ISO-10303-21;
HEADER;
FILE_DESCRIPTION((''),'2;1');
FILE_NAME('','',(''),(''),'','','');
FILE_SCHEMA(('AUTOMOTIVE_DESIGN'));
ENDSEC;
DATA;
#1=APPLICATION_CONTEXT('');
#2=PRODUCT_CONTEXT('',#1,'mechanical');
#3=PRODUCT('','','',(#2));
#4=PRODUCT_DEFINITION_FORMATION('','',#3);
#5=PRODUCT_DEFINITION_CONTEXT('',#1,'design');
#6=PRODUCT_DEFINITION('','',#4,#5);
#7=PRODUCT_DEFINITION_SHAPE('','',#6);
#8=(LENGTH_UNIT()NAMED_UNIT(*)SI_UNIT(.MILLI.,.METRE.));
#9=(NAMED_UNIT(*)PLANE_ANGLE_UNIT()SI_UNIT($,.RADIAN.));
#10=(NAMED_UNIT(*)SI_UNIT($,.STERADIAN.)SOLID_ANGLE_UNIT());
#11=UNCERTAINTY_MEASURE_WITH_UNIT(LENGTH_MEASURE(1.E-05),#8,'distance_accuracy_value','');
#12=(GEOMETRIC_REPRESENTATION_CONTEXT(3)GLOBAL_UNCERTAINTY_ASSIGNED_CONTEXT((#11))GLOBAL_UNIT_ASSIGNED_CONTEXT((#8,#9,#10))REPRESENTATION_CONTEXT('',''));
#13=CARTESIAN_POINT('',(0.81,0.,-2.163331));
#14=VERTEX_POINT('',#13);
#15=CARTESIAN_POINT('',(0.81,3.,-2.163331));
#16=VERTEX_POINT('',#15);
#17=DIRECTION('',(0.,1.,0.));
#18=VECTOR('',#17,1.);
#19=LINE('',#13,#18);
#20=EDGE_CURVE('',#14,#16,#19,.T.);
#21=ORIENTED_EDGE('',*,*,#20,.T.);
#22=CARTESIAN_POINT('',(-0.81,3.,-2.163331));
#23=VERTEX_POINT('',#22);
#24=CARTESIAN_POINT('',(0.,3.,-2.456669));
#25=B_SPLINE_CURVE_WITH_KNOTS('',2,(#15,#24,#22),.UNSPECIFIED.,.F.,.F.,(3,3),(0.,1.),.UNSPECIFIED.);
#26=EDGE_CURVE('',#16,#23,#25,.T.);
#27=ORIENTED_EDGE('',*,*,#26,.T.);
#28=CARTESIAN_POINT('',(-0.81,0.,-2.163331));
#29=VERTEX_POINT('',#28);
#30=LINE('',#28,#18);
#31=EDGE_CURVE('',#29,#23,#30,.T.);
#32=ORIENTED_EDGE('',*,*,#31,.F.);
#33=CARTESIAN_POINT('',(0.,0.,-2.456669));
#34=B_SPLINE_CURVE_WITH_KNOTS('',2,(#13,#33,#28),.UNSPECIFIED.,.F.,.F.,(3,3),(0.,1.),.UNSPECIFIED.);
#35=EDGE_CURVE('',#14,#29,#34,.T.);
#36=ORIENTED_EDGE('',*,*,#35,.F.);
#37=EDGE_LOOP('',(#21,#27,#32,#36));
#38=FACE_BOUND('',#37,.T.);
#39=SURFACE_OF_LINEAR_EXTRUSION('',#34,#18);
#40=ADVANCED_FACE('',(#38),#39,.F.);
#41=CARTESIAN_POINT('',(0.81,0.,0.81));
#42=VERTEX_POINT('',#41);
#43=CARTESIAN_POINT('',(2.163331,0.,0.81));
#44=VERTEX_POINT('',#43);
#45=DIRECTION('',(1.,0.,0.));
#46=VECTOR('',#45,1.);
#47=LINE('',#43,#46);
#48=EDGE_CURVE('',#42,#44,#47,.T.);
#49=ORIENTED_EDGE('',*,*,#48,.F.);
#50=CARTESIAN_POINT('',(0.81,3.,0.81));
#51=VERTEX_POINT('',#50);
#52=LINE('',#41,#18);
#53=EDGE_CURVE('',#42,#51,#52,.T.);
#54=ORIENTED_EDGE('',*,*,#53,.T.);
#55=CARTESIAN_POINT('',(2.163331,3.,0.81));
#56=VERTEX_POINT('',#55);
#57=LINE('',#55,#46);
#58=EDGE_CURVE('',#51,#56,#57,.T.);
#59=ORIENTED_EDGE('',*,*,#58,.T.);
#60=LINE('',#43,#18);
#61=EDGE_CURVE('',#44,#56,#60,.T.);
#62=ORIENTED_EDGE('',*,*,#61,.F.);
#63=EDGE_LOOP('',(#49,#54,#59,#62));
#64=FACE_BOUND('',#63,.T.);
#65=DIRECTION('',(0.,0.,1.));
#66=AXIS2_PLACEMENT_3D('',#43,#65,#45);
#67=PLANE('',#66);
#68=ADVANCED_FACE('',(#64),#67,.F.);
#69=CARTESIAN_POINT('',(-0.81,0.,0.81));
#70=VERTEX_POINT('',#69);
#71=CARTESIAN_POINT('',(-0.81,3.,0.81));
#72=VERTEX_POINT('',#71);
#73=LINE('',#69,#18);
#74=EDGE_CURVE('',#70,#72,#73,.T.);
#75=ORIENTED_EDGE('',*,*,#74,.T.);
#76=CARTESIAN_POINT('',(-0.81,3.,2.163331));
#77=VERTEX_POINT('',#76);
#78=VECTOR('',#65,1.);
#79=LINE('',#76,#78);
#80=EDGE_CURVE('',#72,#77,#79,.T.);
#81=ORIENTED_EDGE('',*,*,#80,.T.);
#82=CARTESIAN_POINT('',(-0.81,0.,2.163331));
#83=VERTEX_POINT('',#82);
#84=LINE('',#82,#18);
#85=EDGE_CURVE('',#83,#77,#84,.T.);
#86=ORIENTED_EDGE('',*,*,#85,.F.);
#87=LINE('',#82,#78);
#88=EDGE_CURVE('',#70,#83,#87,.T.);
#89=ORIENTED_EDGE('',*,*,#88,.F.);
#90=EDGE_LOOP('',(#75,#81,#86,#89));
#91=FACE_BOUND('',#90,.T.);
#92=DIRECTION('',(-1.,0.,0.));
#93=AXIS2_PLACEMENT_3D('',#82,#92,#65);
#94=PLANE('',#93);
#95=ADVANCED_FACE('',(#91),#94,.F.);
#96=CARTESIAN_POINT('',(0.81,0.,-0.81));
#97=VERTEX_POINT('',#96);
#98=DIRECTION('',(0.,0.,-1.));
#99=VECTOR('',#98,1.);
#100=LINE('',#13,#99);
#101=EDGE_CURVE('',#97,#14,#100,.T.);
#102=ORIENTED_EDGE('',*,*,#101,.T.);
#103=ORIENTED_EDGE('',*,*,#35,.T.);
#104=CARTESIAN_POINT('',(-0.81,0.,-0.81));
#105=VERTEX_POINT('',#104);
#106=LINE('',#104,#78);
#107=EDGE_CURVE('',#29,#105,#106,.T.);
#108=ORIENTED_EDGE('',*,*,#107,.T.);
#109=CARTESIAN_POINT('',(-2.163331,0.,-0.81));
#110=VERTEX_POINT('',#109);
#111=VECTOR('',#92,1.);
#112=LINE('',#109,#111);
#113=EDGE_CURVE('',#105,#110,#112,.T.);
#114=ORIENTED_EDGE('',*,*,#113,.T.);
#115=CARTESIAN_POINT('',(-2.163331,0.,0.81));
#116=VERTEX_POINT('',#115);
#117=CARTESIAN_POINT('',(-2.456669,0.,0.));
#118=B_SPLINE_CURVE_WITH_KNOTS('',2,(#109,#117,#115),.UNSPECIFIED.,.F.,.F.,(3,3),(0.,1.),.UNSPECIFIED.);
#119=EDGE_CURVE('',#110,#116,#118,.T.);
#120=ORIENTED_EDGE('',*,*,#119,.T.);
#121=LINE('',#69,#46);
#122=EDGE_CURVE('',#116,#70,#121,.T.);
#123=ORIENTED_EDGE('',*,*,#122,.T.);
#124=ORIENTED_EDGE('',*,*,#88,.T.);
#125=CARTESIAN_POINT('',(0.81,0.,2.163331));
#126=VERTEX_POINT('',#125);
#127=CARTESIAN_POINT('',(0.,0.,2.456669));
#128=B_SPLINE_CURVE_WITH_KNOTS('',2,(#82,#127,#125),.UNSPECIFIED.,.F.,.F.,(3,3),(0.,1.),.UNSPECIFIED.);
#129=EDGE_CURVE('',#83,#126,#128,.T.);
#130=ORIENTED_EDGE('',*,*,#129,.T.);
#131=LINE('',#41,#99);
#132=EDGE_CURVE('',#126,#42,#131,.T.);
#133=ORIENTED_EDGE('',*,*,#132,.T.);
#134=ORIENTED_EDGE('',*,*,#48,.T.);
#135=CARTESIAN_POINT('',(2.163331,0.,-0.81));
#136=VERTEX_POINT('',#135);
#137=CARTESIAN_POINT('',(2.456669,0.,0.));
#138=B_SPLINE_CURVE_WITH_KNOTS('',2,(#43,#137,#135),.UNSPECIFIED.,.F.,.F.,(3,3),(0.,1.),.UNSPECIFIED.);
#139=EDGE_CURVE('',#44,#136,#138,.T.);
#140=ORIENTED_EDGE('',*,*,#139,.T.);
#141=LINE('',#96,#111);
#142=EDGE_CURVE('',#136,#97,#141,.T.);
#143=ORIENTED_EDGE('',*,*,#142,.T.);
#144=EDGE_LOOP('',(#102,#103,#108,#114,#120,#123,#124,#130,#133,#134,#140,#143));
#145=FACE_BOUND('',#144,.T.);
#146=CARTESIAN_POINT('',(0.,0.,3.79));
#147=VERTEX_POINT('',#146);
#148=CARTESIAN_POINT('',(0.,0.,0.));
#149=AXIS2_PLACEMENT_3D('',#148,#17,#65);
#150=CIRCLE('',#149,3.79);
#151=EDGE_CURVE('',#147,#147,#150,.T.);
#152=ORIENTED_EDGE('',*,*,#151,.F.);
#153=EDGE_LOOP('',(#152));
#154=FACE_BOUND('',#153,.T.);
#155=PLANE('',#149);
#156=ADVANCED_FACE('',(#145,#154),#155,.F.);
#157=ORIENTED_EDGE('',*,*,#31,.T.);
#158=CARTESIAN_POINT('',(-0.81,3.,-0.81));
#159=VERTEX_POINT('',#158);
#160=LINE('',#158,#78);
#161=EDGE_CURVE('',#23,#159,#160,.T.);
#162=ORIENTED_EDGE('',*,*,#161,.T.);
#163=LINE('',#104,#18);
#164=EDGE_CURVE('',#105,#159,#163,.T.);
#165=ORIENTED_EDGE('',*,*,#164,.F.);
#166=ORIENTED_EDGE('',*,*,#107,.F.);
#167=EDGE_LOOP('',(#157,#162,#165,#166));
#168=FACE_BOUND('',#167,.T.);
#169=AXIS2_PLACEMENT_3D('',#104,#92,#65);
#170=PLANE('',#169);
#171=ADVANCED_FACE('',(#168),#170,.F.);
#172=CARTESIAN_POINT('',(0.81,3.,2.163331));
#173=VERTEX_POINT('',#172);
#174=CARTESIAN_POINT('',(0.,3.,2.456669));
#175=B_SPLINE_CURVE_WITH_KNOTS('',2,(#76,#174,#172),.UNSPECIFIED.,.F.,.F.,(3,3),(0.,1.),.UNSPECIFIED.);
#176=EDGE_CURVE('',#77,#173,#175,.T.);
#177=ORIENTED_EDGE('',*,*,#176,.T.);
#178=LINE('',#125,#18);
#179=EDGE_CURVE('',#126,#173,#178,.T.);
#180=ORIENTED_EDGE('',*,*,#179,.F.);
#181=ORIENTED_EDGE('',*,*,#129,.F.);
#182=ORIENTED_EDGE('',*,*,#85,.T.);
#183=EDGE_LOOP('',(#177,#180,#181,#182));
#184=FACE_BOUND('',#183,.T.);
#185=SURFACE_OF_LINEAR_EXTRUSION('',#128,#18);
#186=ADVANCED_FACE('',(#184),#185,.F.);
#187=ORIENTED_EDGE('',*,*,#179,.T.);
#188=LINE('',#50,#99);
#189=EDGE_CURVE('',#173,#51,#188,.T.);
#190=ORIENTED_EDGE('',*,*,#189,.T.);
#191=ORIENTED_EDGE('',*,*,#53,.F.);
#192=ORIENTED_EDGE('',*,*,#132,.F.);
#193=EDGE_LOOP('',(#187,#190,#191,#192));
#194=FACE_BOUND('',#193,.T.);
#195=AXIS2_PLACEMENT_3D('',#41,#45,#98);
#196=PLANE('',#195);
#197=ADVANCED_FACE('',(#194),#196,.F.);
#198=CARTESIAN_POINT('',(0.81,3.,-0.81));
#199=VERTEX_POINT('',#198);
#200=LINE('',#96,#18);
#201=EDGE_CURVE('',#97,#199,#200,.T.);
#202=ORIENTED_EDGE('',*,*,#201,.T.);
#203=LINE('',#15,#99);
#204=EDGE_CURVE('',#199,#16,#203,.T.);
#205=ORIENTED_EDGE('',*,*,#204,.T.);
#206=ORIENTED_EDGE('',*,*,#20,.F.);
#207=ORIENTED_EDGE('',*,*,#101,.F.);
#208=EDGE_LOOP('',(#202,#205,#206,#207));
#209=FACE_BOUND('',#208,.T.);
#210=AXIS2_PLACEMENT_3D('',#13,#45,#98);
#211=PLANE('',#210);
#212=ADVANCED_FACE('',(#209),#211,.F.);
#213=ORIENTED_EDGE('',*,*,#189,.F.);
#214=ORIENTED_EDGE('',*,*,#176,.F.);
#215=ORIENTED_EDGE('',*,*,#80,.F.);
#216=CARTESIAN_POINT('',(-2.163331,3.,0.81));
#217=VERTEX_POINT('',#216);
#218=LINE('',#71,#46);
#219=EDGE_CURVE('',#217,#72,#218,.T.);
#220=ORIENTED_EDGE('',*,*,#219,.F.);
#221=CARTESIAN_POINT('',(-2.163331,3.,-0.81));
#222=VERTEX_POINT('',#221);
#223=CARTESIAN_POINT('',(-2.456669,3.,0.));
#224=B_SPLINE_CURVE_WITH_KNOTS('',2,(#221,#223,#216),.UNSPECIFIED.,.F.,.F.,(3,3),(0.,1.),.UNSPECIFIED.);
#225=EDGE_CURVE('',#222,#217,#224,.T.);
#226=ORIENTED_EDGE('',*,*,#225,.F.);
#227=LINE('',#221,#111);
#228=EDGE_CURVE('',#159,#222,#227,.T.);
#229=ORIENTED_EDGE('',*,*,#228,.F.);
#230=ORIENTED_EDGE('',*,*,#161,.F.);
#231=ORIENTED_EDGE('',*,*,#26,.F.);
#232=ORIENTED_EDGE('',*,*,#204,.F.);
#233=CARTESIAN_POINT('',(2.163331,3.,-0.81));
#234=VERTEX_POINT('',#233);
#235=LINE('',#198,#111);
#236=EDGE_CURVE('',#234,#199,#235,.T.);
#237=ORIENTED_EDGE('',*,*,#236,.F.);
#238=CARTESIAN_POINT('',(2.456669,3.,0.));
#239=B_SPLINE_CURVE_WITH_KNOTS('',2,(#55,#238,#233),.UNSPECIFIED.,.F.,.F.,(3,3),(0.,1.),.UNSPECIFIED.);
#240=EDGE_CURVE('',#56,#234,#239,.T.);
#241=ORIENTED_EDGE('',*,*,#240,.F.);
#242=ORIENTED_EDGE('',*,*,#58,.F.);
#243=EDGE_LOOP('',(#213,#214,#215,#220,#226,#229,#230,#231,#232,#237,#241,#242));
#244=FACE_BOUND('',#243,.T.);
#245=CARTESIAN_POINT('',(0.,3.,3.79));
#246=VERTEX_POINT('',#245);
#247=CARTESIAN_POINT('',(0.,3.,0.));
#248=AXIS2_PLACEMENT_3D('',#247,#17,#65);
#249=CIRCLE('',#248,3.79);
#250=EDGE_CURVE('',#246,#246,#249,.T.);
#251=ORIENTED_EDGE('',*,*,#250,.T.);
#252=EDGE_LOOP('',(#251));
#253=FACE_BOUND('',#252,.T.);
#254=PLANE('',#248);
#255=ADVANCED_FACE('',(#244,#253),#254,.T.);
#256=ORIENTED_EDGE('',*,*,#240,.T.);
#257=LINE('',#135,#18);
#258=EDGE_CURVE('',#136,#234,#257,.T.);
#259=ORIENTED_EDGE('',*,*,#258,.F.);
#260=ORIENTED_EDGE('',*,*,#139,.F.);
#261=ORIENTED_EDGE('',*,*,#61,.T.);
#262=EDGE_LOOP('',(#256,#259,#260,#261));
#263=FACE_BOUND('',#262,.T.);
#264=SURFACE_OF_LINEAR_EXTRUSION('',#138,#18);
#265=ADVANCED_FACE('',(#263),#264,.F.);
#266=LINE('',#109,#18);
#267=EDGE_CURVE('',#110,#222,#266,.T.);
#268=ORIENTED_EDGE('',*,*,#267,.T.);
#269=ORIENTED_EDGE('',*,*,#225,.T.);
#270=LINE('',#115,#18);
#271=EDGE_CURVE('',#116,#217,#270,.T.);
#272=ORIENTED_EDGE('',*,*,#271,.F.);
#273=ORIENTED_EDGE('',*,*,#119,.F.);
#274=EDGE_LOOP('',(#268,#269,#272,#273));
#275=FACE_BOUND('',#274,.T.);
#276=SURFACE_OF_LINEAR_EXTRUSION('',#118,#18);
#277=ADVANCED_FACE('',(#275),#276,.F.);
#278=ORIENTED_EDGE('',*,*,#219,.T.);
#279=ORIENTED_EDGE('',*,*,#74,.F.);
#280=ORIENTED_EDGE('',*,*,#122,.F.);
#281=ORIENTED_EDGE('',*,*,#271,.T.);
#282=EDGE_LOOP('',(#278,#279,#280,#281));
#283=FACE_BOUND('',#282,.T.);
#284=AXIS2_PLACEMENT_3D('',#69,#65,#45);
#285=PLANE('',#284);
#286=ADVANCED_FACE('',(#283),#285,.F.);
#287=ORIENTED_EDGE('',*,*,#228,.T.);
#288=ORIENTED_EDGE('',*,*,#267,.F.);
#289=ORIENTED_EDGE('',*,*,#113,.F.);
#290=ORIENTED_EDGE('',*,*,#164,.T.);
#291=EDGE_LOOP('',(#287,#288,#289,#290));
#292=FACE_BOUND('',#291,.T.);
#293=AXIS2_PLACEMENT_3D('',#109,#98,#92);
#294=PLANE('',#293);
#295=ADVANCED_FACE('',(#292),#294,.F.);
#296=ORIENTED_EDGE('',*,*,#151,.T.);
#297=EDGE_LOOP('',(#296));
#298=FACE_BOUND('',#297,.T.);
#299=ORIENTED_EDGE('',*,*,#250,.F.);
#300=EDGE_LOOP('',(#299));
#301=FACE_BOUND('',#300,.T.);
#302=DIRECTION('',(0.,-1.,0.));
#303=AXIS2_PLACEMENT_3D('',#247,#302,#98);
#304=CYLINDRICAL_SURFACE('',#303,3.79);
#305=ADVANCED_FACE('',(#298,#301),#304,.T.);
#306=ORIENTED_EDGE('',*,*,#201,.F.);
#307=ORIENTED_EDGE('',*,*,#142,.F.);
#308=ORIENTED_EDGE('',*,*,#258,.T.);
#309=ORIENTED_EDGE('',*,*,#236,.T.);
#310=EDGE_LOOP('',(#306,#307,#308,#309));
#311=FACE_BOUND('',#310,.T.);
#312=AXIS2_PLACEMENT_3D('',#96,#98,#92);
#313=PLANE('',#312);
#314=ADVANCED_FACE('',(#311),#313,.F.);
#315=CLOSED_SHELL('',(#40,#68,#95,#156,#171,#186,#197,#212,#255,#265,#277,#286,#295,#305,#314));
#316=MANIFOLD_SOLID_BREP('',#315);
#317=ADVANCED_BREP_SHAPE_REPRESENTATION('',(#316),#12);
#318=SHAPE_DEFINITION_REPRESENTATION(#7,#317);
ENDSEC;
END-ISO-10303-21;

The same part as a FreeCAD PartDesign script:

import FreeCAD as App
import Part
import Sketcher

V = App.Vector
Q = App.Units.Quantity

doc = App.newDocument("Part")
body = doc.addObject("PartDesign::Body", "Body")

sketch1 = body.newObject("Sketcher::SketchObject", "Sketch")
sketch1.AttachmentSupport = (doc.getObject("XZ_Plane"), [""])
sketch1.MapMode = "FlatFace"
sketch1.addGeometry(Part.Circle(V(0, 0, 0), V(0, 0, 1), 3.8), False)
sketch1.addConstraint([
    Sketcher.Constraint("Coincident", 0, 3, -1, 1),
    Sketcher.Constraint("Diameter", 0, Q("7.58 mm")),
])
pad1 = body.newObject("PartDesign::Pad", "Pad")
pad1.Profile = sketch1
pad1.Length = 3
pad1.Reversed = True

sketch2 = body.newObject("Sketcher::SketchObject", "Sketch001")
sketch2.AttachmentSupport = (doc.getObject("XZ_Plane"), [""])
sketch2.MapMode = "FlatFace"
sketch2.AttachmentOffset = App.Placement(V(0, 0, -3), App.Rotation())
sketch2.addGeometry([
    Part.LineSegment(V(-0.81, -0.81, 0), V(-2.163331, -0.81, 0)),
    Part.BSplineCurve([V(-2.163331, 0.81, 0), V(-2.456669, 0, 0), V(-2.163331, -0.81, 0)], [3, 3], [0, 1], False, 2, [1, 1, 1], False),
    Part.LineSegment(V(-2.163331, 0.81, 0), V(-0.81, 0.81, 0)),
    Part.LineSegment(V(-0.81, 0.81, 0), V(-0.81, 2.163331, 0)),
    Part.BSplineCurve([V(0.81, 2.163331, 0), V(0, 2.456669, 0), V(-0.81, 2.163331, 0)], [3, 3], [0, 1], False, 2, [1, 1, 1], False),
    Part.LineSegment(V(0.81, 2.163331, 0), V(0.81, 0.81, 0)),
    Part.LineSegment(V(0.81, 0.81, 0), V(2.163331, 0.81, 0)),
    Part.BSplineCurve([V(2.163331, -0.81, 0), V(2.456669, 0, 0), V(2.163331, 0.81, 0)], [3, 3], [0, 1], False, 2, [1, 1, 1], False),
    Part.LineSegment(V(2.163331, -0.81, 0), V(0.81, -0.81, 0)),
    Part.LineSegment(V(0.81, -0.81, 0), V(0.81, -2.163331, 0)),
    Part.BSplineCurve([V(-0.81, -2.163331, 0), V(0, -2.456669, 0), V(0.81, -2.163331, 0)], [3, 3], [0, 1], False, 2, [1, 1, 1], False),
    Part.LineSegment(V(-0.81, -2.163331, 0), V(-0.81, -0.81, 0)),
], False)
sketch2.addConstraint([
    Sketcher.Constraint("Block", 1),
    Sketcher.Constraint("Block", 4),
    Sketcher.Constraint("Block", 7),
    Sketcher.Constraint("Block", 10),
    Sketcher.Constraint("Coincident", 0, 2, 1, 2),
    Sketcher.Constraint("Coincident", 1, 1, 2, 1),
    Sketcher.Constraint("Coincident", 2, 2, 3, 1),
    Sketcher.Constraint("Coincident", 3, 2, 4, 2),
    Sketcher.Constraint("Coincident", 4, 1, 5, 1),
    Sketcher.Constraint("Coincident", 5, 2, 6, 1),
    Sketcher.Constraint("Coincident", 6, 2, 7, 2),
    Sketcher.Constraint("Coincident", 7, 1, 8, 1),
    Sketcher.Constraint("Coincident", 8, 2, 9, 1),
    Sketcher.Constraint("Coincident", 9, 2, 10, 2),
    Sketcher.Constraint("Coincident", 10, 1, 11, 1),
    Sketcher.Constraint("Coincident", 11, 2, 0, 1),
    Sketcher.Constraint("Horizontal", 0),
    Sketcher.Constraint("Horizontal", 2),
    Sketcher.Constraint("Vertical", 3),
    Sketcher.Constraint("Vertical", 5),
    Sketcher.Constraint("Horizontal", 6),
    Sketcher.Constraint("Horizontal", 8),
    Sketcher.Constraint("Vertical", 9),
    Sketcher.Constraint("Vertical", 11),
])
pocket1 = body.newObject("PartDesign::Pocket", "Pocket")
pocket1.Profile = sketch2
pocket1.Length = 3
pocket1.Reversed = True

doc.recompute()
